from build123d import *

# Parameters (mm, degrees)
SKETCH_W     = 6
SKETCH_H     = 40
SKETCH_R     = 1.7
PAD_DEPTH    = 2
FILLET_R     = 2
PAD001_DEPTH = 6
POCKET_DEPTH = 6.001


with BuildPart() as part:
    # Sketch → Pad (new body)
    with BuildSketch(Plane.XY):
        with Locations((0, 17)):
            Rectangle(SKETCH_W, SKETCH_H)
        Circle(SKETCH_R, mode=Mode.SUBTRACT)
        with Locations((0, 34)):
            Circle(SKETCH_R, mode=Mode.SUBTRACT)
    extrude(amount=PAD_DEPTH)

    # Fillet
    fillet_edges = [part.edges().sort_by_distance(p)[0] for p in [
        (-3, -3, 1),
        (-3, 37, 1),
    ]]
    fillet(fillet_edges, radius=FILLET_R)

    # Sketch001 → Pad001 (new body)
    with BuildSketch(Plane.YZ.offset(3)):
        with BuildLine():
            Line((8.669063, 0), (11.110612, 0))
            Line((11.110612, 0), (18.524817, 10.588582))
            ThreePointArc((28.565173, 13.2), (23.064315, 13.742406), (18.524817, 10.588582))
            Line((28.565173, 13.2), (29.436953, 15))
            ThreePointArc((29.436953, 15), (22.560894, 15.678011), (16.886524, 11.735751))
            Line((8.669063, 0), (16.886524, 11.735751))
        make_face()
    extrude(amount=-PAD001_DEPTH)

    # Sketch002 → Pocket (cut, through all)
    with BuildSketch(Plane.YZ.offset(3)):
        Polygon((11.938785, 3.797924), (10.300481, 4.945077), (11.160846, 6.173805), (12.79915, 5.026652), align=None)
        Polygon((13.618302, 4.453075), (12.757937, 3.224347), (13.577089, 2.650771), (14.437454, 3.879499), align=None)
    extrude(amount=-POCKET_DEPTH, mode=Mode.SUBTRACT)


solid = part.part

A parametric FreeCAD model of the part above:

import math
import FreeCAD as App
import Part
import Sketcher
from FreeCAD import Vector
Q = App.Units.Quantity


def edges_at(feature, points):
    """Names of the edges that pass closest to the given points."""
    edges = feature.Shape.Edges
    near = lambda p: min(range(len(edges)), key=lambda i: edges[i].distToShape(Part.Vertex(*p))[0])
    return sorted({f"Edge{near(p) + 1}" for p in points})

doc = App.newDocument("Part")
params = doc.addObject("Spreadsheet::Sheet", "Params")
for row, (alias, value) in enumerate([
    ("sketch1_diameter", "3.4 mm"),
    ("sketch1_width", "6 mm"),
    ("sketch1_height", "40 mm"),
    ("pad1_length", "2 mm"),
    ("fillet_radius", "2 mm"),
    ("sketch2_radius", "8.000001 mm"),
    ("sketch2_radius2", "10.000002 mm"),
    ("pad2_length", "6 mm"),
    ("sketch3_length", "2 mm"),
    ("sketch3_length2", "1 mm"),
    ("sketch3_length3", "1.5 mm"),
], start=1):
    params.set(f"A{row}", alias)
    params.set(f"B{row}", "=" + value)
    params.setAlias(f"B{row}", alias)

body = doc.addObject("PartDesign::Body", "Body")

sketch1 = body.newObject("Sketcher::SketchObject", "Sketch")
sketch1.AttachmentSupport = (doc.getObject("XY_Plane"), [""])
sketch1.MapMode = "FlatFace"
sketch1.addGeometry([
    Part.LineSegment(Vector(-3, 37, 0), Vector(-3, -3, 0)),
    Part.LineSegment(Vector(-3, -3, 0), Vector(3, -3, 0)),
    Part.LineSegment(Vector(3, -3, 0), Vector(3, 37, 0)),
    Part.LineSegment(Vector(3, 37, 0), Vector(-3, 37, 0)),
    Part.Circle(Vector(0, 0, 0), Vector(0, 0, 1), 1.7),
    Part.Circle(Vector(0, 34, 0), Vector(0, 0, 1), 1.7),
], False)
sketch1.addConstraint([
    Sketcher.Constraint("Coincident", 0, 2, 1, 1),
    Sketcher.Constraint("Coincident", 1, 2, 2, 1),
    Sketcher.Constraint("Coincident", 2, 2, 3, 1),
    Sketcher.Constraint("Coincident", 3, 2, 0, 1),
    Sketcher.Constraint("Vertical", 0),
    Sketcher.Constraint("Horizontal", 1),
    Sketcher.Constraint("Vertical", 2),
    Sketcher.Constraint("Horizontal", 3),
    Sketcher.Constraint("Coincident", 4, 3, -1, 1),
    Sketcher.Constraint("Equal", 4, 5),
    Sketcher.Constraint("PointOnObject", 5, 3, -2),
    Sketcher.Constraint("Diameter", 4, 3.4),
    Sketcher.Constraint("DistanceX", 1, 1, 1, 2, 6.0),
    Sketcher.Constraint("DistanceY", 0, 2, 0, 1, 40.0),
    Sketcher.Constraint("DistanceY", -1, 1, 5, 3, 34.0),
    Sketcher.Constraint("DistanceX", 0, 2, -1, 1, 3.0),
    Sketcher.Constraint("DistanceY", 0, 2, -1, 1, 3.0),
])
sketch1.setExpression("Constraints[11]", "Params.sketch1_diameter")
sketch1.setExpression("Constraints[12]", "Params.sketch1_width")
sketch1.setExpression("Constraints[13]", "Params.sketch1_height")
pad1 = body.newObject("PartDesign::Pad", "Pad")
pad1.Profile = sketch1
pad1.setExpression("Length", "Params.pad1_length")
doc.recompute()

fillet = body.newObject("PartDesign::Fillet", "Fillet")
fillet.Base = (pad1, edges_at(pad1, [(-3, -3, 1), (-3, 37, 1)]))
fillet.setExpression("Radius", "Params.fillet_radius")

sketch2 = body.newObject("Sketcher::SketchObject", "Sketch001")
sketch2.AttachmentSupport = (doc.getObject("YZ_Plane"), [""])
sketch2.MapMode = "FlatFace"
sketch2.AttachmentOffset = App.Placement(Vector(0, 0, 3), App.Rotation())
sketch2.addGeometry([
    Part.LineSegment(Vector(8.7, 0, 0), Vector(11.1, 0, 0)),
    Part.LineSegment(Vector(11.1, 0, 0), Vector(18.5, 10.6, 0)),
    Part.ArcOfCircle(Part.Circle(Vector(25.1, 6, 0), Vector(0, 0, 1), 8), math.radians(64), math.radians(145)),
    Part.LineSegment(Vector(28.6, 13.2, 0), Vector(29.4, 15, 0)),
    Part.ArcOfCircle(Part.Circle(Vector(25.1, 6, 0), Vector(0, 0, 1), 10), math.radians(64), math.radians(145)),
    Part.LineSegment(Vector(16.9, 11.7, 0), Vector(8.7, 0, 0)),
], False)
sketch2.addConstraint([
    Sketcher.Constraint("Coincident", 0, 2, 1, 1),
    Sketcher.Constraint("Coincident", 1, 2, 2, 2),
    Sketcher.Constraint("Coincident", 2, 1, 3, 1),
    Sketcher.Constraint("Coincident", 3, 2, 4, 1),
    Sketcher.Constraint("Tangent", 4, 2, 5, 1),
    Sketcher.Constraint("Coincident", 5, 2, 0, 1),
    Sketcher.Constraint("Horizontal", 0),
    Sketcher.Constraint("Coincident", 4, 3, 2, 3),
    Sketcher.Constraint("PointOnObject", 0, 2, -1),
    Sketcher.Constraint("Parallel", 1, 5),
    Sketcher.Constraint("Radius", 2, 8.000001),
    Sketcher.Constraint("Radius", 4, 10.000002),
    Sketcher.Constraint("Angle", 1, Q("55 deg")),
    Sketcher.Constraint("DistanceY", -1, 1, 2, 3, 5.999999),
    Sketcher.Constraint("DistanceY", -1, 1, 3, 2, 15.0),
    Sketcher.Constraint("DistanceY", -1, 1, 2, 1, 13.2),
    Sketcher.Constraint("Distance", 1, 12.926272),
    Sketcher.Constraint("DistanceX", -1, 1, 2, 3, 25.078054),
])
sketch2.setExpression("Constraints[10]", "Params.sketch2_radius")
sketch2.setExpression("Constraints[11]", "Params.sketch2_radius2")
pad2 = body.newObject("PartDesign::Pad", "Pad001")
pad2.Profile = sketch2
pad2.setExpression("Length", "Params.pad2_length")
pad2.Reversed = True

sketch3 = body.newObject("Sketcher::SketchObject", "Sketch002")
sketch3.AttachmentSupport = (doc.getObject("YZ_Plane"), [""])
sketch3.MapMode = "FlatFace"
sketch3.AttachmentOffset = App.Placement(Vector(0, 0, 3), App.Rotation())
sketch3.addGeometry([
    Part.LineSegment(Vector(10.3, 4.9, 0), Vector(11.9, 3.8, 0)),
    Part.LineSegment(Vector(11.9, 3.8, 0), Vector(12.8, 5, 0)),
    Part.LineSegment(Vector(12.8, 5, 0), Vector(11.2, 6.2, 0)),
    Part.LineSegment(Vector(11.2, 6.2, 0), Vector(10.3, 4.9, 0)),
    Part.LineSegment(Vector(13.6, 4.5, 0), Vector(12.8, 3.2, 0)),
    Part.LineSegment(Vector(12.8, 3.2, 0), Vector(13.6, 2.7, 0)),
    Part.LineSegment(Vector(13.6, 2.7, 0), Vector(14.4, 3.9, 0)),
    Part.LineSegment(Vector(14.4, 3.9, 0), Vector(13.6, 4.5, 0)),
], False)
sketch3.addConstraint([
    Sketcher.Constraint("Coincident", 0, 2, 1, 1),
    Sketcher.Constraint("Coincident", 1, 2, 2, 1),
    Sketcher.Constraint("Coincident", 2, 2, 3, 1),
    Sketcher.Constraint("Coincident", 3, 2, 0, 1),
    Sketcher.Constraint("Coincident", 4, 2, 5, 1),
    Sketcher.Constraint("Coincident", 5, 2, 6, 1),
    Sketcher.Constraint("Coincident", 6, 2, 7, 1),
    Sketcher.Constraint("Coincident", 7, 2, 4, 1),
    Sketcher.Constraint("Perpendicular", 0, 1),
    Sketcher.Constraint("Perpendicular", 1, 2),
    Sketcher.Constraint("Perpendicular", 2, 3),
    Sketcher.Constraint("Parallel", 3, 4),
    Sketcher.Constraint("Perpendicular", 4, 5),
    Sketcher.Constraint("Perpendicular", 5, 6),
    Sketcher.Constraint("Perpendicular", 6, 7),
    Sketcher.Constraint("Equal", 3, 4),
    Sketcher.Constraint("Angle", 0, Q("-35.000004 deg")),
    Sketcher.Constraint("Distance", 0, 2.0),
    Sketcher.Constraint("Distance", 5, 1.0),
    Sketcher.Constraint("Distance", 1, 1.5),
    Sketcher.Constraint("DistanceY", -1, 1, 6, 2, 3.879499),
    Sketcher.Constraint("DistanceX", -1, 1, 1, 2, 12.79915),
    Sketcher.Constraint("DistanceX", -1, 1, 5, 2, 13.577089),
    Sketcher.Constraint("DistanceY", 4, 2, 3, 2, 1.72073),
])
sketch3.setExpression("Constraints[17]", "Params.sketch3_length")
sketch3.setExpression("Constraints[18]", "Params.sketch3_length2")
sketch3.setExpression("Constraints[19]", "Params.sketch3_length3")
pocket1 = body.newObject("PartDesign::Pocket", "Pocket")
pocket1.Profile = sketch3
pocket1.Type = "ThroughAll"

doc.recompute()
